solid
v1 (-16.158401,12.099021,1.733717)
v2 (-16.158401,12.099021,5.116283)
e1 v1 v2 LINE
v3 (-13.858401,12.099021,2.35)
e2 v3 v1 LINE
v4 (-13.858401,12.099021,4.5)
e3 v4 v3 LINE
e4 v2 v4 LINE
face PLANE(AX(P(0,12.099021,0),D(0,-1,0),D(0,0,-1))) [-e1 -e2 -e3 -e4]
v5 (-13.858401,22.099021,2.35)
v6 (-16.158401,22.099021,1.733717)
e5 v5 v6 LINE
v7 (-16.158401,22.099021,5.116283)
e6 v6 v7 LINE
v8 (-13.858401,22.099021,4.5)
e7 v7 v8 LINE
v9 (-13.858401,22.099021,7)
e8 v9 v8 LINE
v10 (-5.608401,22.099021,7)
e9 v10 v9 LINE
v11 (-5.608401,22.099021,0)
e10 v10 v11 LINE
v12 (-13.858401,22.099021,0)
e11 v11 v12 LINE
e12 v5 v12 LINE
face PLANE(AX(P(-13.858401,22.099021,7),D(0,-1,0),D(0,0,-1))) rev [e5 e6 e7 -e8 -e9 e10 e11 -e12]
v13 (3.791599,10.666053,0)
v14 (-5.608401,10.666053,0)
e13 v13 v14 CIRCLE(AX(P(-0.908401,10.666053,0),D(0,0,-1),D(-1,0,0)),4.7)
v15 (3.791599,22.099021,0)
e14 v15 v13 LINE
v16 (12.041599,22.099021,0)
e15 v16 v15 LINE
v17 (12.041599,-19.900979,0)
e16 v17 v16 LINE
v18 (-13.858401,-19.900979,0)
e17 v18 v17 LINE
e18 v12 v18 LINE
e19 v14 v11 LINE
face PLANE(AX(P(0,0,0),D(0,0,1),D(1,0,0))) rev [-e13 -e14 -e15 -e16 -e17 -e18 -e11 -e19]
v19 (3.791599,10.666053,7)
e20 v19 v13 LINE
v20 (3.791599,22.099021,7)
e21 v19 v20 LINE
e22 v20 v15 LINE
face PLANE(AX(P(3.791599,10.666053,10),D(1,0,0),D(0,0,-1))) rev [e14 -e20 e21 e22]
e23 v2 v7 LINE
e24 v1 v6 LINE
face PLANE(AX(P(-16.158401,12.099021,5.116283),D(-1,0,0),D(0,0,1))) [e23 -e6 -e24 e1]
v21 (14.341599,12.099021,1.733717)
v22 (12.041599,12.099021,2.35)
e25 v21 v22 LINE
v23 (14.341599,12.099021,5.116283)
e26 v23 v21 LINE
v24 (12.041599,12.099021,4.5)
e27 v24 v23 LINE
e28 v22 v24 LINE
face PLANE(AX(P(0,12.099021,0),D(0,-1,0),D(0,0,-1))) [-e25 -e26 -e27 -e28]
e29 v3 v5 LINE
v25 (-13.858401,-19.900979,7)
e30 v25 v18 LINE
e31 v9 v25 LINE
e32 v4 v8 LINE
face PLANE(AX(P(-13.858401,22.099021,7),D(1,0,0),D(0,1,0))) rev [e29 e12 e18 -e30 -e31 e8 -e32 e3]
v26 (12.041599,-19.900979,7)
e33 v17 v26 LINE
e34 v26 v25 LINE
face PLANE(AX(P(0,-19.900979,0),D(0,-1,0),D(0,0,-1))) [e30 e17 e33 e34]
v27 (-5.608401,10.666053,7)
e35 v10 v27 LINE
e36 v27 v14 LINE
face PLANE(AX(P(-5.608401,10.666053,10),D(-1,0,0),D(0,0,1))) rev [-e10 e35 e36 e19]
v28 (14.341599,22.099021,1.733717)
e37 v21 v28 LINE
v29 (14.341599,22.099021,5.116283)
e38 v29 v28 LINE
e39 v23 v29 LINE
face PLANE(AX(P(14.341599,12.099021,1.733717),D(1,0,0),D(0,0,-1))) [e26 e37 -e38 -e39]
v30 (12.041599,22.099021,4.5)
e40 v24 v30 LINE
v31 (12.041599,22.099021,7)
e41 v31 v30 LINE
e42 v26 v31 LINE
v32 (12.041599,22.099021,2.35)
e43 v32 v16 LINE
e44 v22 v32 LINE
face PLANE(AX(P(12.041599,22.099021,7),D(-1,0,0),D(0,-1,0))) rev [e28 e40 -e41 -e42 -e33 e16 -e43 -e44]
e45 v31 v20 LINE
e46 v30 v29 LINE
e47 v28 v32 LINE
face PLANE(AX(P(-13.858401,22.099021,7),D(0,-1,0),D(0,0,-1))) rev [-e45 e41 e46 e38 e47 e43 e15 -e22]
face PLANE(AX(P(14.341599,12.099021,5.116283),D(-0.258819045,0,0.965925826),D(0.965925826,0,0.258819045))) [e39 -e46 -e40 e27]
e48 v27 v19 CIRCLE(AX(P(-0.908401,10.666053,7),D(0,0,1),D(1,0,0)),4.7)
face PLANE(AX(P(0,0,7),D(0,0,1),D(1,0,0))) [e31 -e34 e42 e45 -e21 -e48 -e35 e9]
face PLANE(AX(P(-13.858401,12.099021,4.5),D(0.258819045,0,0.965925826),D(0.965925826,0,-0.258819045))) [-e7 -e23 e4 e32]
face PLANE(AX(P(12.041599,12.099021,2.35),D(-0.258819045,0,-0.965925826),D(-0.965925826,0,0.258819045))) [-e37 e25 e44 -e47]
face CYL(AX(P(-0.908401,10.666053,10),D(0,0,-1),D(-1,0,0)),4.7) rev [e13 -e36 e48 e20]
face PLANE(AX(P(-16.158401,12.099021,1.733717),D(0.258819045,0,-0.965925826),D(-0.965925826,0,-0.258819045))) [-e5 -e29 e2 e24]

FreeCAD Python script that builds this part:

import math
import FreeCAD as App
import Part
import Sketcher
from FreeCAD import Vector
Q = App.Units.Quantity


def add_polygon(sketch, points):
    """Adds a closed chain of lines whose ends are joined by coincident constraints."""
    first, n = sketch.GeometryCount, len(points)
    for a, b in zip(points, points[1:] + points[:1]):
        sketch.addGeometry(Part.LineSegment(App.Vector(*a, 0), App.Vector(*b, 0)), False)
    for i in range(n):
        sketch.addConstraint(Sketcher.Constraint("Coincident", first + i, 2, first + (i + 1) % n, 1))

doc = App.newDocument("Part")
body = doc.addObject("PartDesign::Body", "Body")

# Sketch on XY plane
sketch1 = body.newObject("Sketcher::SketchObject", "Sketch")
sketch1.AttachmentSupport = (doc.getObject("XY_Plane"), [""])
sketch1.MapMode = "FlatFace"
add_polygon(sketch1, [(-14, 22), (-14, -8), (12, -8), (12, 22)])  # lines 0-3
sketch1.addConstraint([
    Sketcher.Constraint("Vertical", 0),
    Sketcher.Constraint("Horizontal", 1),
    Sketcher.Constraint("Vertical", 2),
    Sketcher.Constraint("Horizontal", 3),
    Sketcher.Constraint("DistanceY", 0, 2, 0, 1, Q("30 mm")),
    Sketcher.Constraint("DistanceX", 1, 1, 1, 2, Q("25.9 mm")),
    Sketcher.Constraint("DistanceX", 0, 2, -1, 1, Q("13.858401 mm")),
    Sketcher.Constraint("DistanceY", 0, 2, -1, 1, Q("7.900979 mm")),
])
pad1 = body.newObject("PartDesign::Pad", "Pad")
pad1.Profile = sketch1
pad1.Length = 7

# Sketch on XZ plane
sketch2 = body.newObject("Sketcher::SketchObject", "Sketch001")
sketch2.AttachmentSupport = (doc.getObject("XZ_Plane"), [""])
sketch2.MapMode = "FlatFace"
sketch2.AttachmentOffset = App.Placement(Vector(0, 0, -22.099021), App.Rotation())
add_polygon(sketch2, [(-16.2, 5.1), (-13.9, 4.5), (-13.9, 2.4), (-16.2, 1.7)])  # lines 0-3
add_polygon(sketch2, [(14.3, 1.7), (12, 2.4), (12, 4.5), (14.3, 5.1)])  # lines 4-7
sketch2.addConstraint([
    Sketcher.Constraint("Vertical", 1),
    Sketcher.Constraint("Vertical", 3),
    Sketcher.Constraint("Vertical", 5),
    Sketcher.Constraint("Vertical", 7),
    Sketcher.Constraint("Parallel", 0, 4),
    Sketcher.Constraint("Parallel", 2, 6),
    Sketcher.Constraint("Horizontal", 1, 2, 4, 2),
    Sketcher.Constraint("Horizontal", 0, 2, 5, 2),
    Sketcher.Constraint("Horizontal", 3, 2, 6, 2),
    Sketcher.Constraint("Horizontal", 2, 2, 7, 2),
    Sketcher.Constraint("Angle", 0, Q("-15 deg")),
    Sketcher.Constraint("DistanceY", 1, 2, 1, 1, Q("2.15 mm")),
    Sketcher.Constraint("DistanceY", -1, 1, 0, 2, Q("4.5 mm")),
    Sketcher.Constraint("DistanceX", 2, 2, 1, 2, Q("2.3 mm")),
    Sketcher.Constraint("DistanceX", 1, 2, 4, 2, Q("25.9 mm")),
    Sketcher.Constraint("DistanceX", 0, 2, -1, 1, Q("13.858401 mm")),
])
pad2 = body.newObject("PartDesign::Pad", "Pad001")
pad2.Profile = sketch2
pad2.Length = 10

# Sketch on XY plane
sketch3 = body.newObject("Sketcher::SketchObject", "Sketch002")
sketch3.AttachmentSupport = (doc.getObject("XY_Plane"), [""])
sketch3.MapMode = "FlatFace"
sketch3.addGeometry([
    Part.LineSegment(Vector(3.8, 22.1, 0), Vector(3.8, 10.7, 0)),
    Part.ArcOfCircle(Part.Circle(Vector(-0.9, 10.7, 0), Vector(0, 0, 1), 4.7), math.radians(180), math.radians(360)),
    Part.LineSegment(Vector(-5.6, 10.7, 0), Vector(-5.6, 22.1, 0)),
    Part.LineSegment(Vector(-5.6, 22.1, 0), Vector(3.8, 22.1, 0)),
], False)
sketch3.addConstraint([
    Sketcher.Constraint("Tangent", 0, 2, 1, 2),
    Sketcher.Constraint("Tangent", 1, 1, 2, 1),
    Sketcher.Constraint("Coincident", 2, 2, 3, 1),
    Sketcher.Constraint("Coincident", 3, 2, 0, 1),
    Sketcher.Constraint("Vertical", 0),
    Sketcher.Constraint("Vertical", 2),
    Sketcher.Constraint("Horizontal", 3),
    Sketcher.Constraint("Radius", 1, Q("4.7 mm")),
    Sketcher.Constraint("DistanceY", 0, 2, 0, 1, Q("11.432968 mm")),
    Sketcher.Constraint("DistanceX", 1, 3, -1, 1, Q("0.908401 mm")),
    Sketcher.Constraint("DistanceY", -1, 1, 2, 2, Q("22.099021 mm")),
])
pocket1 = body.newObject("PartDesign::Pocket", "Pocket")
pocket1.Profile = sketch3
pocket1.Length = 10
pocket1.Reversed = True

# Sketch on XZ plane
sketch4 = body.newObject("Sketcher::SketchObject", "Sketch003")
sketch4.AttachmentSupport = (doc.getObject("XZ_Plane"), [""])
sketch4.MapMode = "FlatFace"
sketch4.AttachmentOffset = App.Placement(Vector(0, 0, 7.900979), App.Rotation())
add_polygon(sketch4, [(-14, 7), (-14, 0), (12, 0), (12, 7)])  # lines 0-3
sketch4.addConstraint([
    Sketcher.Constraint("Vertical", 0),
    Sketcher.Constraint("Horizontal", 1),
    Sketcher.Constraint("Vertical", 2),
    Sketcher.Constraint("Horizontal", 3),
    Sketcher.Constraint("PointOnObject", 0, 2, -1),
    Sketcher.Constraint("DistanceY", 0, 2, 0, 1, Q("7 mm")),
    Sketcher.Constraint("DistanceX", 1, 1, 1, 2, Q("25.9 mm")),
    Sketcher.Constraint("DistanceX", 0, 2, -1, 1, Q("13.858401 mm")),
])
pad3 = body.newObject("PartDesign::Pad", "Pad002")
pad3.Profile = sketch4
pad3.Length = 12

doc.recompute()
